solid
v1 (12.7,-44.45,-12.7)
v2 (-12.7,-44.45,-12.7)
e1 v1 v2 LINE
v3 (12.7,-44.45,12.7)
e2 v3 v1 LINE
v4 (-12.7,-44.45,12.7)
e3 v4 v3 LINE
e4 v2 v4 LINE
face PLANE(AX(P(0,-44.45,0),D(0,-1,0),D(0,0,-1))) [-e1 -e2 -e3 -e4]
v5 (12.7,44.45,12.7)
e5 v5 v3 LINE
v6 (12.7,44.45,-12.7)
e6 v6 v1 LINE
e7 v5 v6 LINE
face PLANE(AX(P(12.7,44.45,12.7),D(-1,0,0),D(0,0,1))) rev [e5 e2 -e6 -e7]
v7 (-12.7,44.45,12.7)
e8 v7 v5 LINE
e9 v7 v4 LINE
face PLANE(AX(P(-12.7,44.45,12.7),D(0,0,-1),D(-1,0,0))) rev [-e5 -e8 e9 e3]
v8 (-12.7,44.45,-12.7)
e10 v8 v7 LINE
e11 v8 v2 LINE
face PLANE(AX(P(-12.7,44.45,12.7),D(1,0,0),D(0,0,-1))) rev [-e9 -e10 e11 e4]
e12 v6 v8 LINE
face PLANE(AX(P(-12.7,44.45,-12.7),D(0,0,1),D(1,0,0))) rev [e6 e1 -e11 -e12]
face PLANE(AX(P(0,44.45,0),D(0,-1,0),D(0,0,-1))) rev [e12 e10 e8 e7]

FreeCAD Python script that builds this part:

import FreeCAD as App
import Part
import Sketcher
from FreeCAD import Vector
Q = App.Units.Quantity

doc = App.newDocument("Part")
body = doc.addObject("PartDesign::Body", "Body")

# Sketch on XZ plane
sketch1 = body.newObject("Sketcher::SketchObject", "Sketch")
sketch1.AttachmentSupport = (doc.getObject("XZ_Plane"), [""])
sketch1.MapMode = "FlatFace"
sketch1.addGeometry([
    Part.LineSegment(Vector(-13, -13, 0), Vector(-13, 13, 0)),
    Part.LineSegment(Vector(-13, 13, 0), Vector(13, 13, 0)),
    Part.LineSegment(Vector(13, 13, 0), Vector(13, -13, 0)),
    Part.LineSegment(Vector(13, -13, 0), Vector(-13, -13, 0)),
], False)
sketch1.addConstraint([
    Sketcher.Constraint("Coincident", 0, 2, 1, 1),
    Sketcher.Constraint("Coincident", 1, 2, 2, 1),
    Sketcher.Constraint("Coincident", 2, 2, 3, 1),
    Sketcher.Constraint("Coincident", 3, 2, 0, 1),
    Sketcher.Constraint("Vertical", 0),
    Sketcher.Constraint("Horizontal", 1),
    Sketcher.Constraint("Vertical", 2),
    Sketcher.Constraint("Horizontal", 3),
    Sketcher.Constraint("Symmetric", 0, 2, 2, 2, -1, 1),
    Sketcher.Constraint("Equal", 3, 0),
    Sketcher.Constraint("DistanceX", 1, 1, 1, 2, Q("1 in")),
])
pad1 = body.newObject("PartDesign::Pad", "Pad")
pad1.Profile = sketch1
pad1.Length = Q("3.5 in")
pad1.Midplane = True

doc.recompute()
